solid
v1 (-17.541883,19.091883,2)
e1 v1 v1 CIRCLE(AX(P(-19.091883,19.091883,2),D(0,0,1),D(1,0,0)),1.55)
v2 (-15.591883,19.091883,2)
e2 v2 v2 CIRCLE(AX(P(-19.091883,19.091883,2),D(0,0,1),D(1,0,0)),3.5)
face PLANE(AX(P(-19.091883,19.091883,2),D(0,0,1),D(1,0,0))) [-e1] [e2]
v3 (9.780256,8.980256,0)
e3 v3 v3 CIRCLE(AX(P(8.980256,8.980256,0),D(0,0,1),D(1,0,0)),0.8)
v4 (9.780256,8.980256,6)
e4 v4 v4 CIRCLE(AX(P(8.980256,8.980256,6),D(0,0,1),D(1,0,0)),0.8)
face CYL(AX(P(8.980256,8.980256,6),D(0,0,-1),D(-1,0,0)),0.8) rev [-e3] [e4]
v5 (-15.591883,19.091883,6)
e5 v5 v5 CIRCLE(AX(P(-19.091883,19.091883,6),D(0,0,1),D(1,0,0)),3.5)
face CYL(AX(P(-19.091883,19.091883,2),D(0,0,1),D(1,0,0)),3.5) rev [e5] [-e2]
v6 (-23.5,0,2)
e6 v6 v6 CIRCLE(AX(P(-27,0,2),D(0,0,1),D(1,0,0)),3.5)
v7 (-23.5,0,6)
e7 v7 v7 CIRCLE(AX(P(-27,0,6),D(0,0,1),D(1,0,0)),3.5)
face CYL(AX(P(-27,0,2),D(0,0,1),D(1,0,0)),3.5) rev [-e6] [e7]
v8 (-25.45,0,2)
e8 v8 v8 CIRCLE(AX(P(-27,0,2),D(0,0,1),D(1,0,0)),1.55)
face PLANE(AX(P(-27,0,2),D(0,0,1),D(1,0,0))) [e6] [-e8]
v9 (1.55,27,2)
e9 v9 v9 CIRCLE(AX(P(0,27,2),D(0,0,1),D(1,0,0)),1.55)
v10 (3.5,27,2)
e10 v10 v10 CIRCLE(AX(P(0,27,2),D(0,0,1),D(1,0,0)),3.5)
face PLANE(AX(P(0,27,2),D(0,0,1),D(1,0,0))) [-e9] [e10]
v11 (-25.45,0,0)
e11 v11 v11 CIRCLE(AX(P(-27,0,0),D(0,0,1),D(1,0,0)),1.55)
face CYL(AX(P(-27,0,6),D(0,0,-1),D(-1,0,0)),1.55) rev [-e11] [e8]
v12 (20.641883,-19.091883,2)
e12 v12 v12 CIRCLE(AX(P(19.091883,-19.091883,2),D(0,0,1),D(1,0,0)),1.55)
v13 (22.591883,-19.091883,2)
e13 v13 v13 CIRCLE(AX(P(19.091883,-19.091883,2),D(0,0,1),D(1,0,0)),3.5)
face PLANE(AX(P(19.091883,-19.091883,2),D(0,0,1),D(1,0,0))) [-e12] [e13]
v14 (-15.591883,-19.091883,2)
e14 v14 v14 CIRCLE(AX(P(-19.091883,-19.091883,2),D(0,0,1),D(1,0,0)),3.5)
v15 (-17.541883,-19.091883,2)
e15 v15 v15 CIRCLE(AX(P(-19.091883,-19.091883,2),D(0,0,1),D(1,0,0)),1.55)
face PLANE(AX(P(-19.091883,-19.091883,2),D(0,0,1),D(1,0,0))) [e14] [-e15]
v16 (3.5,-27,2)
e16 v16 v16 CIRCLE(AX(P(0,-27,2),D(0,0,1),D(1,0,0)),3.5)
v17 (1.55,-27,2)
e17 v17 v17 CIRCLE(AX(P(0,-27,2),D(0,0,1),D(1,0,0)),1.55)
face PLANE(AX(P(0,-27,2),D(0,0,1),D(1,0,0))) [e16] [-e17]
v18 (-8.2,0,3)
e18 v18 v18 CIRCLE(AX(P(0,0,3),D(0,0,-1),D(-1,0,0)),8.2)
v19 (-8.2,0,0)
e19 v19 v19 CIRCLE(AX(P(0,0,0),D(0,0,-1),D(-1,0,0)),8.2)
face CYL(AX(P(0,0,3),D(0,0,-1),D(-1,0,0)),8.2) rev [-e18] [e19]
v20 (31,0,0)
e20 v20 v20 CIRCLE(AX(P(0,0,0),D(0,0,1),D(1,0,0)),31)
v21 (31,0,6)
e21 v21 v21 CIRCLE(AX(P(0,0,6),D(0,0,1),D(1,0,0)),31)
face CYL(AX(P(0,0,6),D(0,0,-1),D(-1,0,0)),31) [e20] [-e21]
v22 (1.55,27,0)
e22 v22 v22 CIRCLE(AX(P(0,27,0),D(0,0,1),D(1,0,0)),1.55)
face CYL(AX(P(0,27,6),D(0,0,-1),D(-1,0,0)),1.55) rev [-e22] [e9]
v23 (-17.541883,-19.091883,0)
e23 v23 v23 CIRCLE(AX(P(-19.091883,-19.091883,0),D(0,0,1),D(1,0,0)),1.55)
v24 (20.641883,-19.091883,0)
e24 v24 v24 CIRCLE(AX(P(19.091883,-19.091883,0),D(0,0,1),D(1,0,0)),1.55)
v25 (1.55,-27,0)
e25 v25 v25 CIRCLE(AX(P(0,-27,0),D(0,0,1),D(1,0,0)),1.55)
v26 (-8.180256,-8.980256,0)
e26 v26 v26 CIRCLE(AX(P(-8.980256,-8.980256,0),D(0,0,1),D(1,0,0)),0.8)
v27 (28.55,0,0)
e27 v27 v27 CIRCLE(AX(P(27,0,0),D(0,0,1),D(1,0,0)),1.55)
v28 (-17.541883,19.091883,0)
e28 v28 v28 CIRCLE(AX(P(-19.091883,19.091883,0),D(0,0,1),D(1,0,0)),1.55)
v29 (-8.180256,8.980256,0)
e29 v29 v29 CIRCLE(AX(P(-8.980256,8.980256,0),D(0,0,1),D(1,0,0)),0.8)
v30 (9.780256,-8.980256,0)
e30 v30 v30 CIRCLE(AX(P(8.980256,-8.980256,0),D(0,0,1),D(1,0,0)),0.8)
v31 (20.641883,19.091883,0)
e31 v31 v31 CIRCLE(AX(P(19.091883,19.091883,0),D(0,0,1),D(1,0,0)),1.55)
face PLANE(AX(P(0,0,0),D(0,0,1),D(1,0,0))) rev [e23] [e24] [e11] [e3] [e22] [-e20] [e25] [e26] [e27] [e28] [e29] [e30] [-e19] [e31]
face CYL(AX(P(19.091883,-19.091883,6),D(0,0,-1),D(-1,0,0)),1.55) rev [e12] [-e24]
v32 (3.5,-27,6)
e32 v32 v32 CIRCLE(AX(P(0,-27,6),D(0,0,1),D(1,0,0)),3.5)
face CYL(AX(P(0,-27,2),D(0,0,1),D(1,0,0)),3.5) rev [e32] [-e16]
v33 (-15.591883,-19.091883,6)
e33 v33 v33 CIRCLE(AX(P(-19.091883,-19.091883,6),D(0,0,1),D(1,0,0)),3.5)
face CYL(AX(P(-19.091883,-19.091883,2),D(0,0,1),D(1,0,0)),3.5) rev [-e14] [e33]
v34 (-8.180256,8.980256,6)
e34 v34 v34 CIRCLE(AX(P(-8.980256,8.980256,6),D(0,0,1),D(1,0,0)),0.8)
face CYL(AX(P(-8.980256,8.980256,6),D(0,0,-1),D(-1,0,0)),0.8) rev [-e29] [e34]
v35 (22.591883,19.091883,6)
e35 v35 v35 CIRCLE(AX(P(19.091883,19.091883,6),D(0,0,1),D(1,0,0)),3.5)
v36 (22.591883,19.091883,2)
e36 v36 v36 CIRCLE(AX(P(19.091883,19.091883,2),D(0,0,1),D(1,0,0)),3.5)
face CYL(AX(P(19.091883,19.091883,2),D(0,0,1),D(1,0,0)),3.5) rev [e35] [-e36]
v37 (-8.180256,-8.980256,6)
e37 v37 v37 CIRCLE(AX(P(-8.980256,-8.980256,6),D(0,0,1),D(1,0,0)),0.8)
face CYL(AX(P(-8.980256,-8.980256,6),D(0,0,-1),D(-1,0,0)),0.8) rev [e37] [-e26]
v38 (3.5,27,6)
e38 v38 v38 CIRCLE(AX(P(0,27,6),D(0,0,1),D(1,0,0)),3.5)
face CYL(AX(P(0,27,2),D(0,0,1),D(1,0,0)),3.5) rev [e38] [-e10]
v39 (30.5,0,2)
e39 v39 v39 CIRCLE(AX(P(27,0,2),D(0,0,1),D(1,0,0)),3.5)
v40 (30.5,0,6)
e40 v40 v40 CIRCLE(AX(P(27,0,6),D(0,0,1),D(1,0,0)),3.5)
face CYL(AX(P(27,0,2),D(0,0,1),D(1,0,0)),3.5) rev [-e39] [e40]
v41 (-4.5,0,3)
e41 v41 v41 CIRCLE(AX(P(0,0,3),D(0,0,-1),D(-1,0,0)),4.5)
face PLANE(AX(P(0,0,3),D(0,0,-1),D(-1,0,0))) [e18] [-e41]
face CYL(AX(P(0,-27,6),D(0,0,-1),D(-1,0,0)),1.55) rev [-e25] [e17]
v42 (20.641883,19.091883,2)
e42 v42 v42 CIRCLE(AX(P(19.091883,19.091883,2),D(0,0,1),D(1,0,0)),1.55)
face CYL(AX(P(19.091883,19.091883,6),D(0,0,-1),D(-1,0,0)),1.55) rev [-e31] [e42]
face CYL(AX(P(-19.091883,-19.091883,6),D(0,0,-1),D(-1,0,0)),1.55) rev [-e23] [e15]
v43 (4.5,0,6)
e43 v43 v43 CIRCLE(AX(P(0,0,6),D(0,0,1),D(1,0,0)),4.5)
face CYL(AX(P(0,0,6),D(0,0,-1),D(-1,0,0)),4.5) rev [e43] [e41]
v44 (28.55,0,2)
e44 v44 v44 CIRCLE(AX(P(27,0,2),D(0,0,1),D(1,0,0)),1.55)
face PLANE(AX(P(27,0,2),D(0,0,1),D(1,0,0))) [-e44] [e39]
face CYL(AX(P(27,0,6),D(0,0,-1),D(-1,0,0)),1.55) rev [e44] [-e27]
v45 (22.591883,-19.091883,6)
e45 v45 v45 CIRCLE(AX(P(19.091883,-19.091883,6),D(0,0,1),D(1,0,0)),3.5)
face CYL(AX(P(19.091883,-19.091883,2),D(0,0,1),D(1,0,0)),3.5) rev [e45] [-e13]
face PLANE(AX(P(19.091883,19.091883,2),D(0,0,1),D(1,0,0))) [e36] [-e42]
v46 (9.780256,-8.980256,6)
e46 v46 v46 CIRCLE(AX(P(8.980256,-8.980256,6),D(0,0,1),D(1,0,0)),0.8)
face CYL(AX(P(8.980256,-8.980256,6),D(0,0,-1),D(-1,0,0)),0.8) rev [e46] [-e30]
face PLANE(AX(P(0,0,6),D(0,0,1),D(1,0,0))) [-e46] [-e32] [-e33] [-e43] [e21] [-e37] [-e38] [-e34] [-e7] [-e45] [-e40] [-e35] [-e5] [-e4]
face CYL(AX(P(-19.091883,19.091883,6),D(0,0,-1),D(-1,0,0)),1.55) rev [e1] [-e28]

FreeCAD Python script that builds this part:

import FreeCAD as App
import Part
import Sketcher

V = App.Vector

doc = App.newDocument("Part")
body = doc.addObject("PartDesign::Body", "Body")

# Sketch on XY plane
sketch1 = body.newObject("Sketcher::SketchObject", "Sketch")
sketch1.AttachmentSupport = (doc.getObject("XY_Plane"), [""])
sketch1.MapMode = "FlatFace"
sketch1.addGeometry(Part.Circle(V(0, 0, 0), V(0, 0, 1), 31), False)
sketch1.addGeometry(Part.Circle(V(-19.1, -19.1, 0), V(0, 0, 1), 1.6), False)
sketch1.addGeometry(Part.Circle(V(-9, -9, 0), V(0, 0, 1), 0.8), False)
sketch1.addGeometry(Part.Circle(V(0, -27, 0), V(0, 0, 1), 1.6), False)
sketch1.addGeometry(Part.Circle(V(19.1, -19.1, 0), V(0, 0, 1), 1.6), False)
sketch1.addGeometry(Part.Circle(V(9, -9, 0), V(0, 0, 1), 0.8), False)
sketch1.addGeometry(Part.Circle(V(0, 0, 0), V(0, 0, 1), 4.5), False)
sketch1.addGeometry(Part.Circle(V(-27, 0, 0), V(0, 0, 1), 1.6), False)
sketch1.addGeometry(Part.Circle(V(-9, 9, 0), V(0, 0, 1), 0.8), False)
sketch1.addGeometry(Part.Circle(V(-19.1, 19.1, 0), V(0, 0, 1), 1.6), False)
sketch1.addGeometry(Part.Circle(V(9, 9, 0), V(0, 0, 1), 0.8), False)
sketch1.addGeometry(Part.Circle(V(27, 0, 0), V(0, 0, 1), 1.6), False)
sketch1.addGeometry(Part.Circle(V(0, 27, 0), V(0, 0, 1), 1.6), False)
sketch1.addGeometry(Part.Circle(V(19.1, 19.1, 0), V(0, 0, 1), 1.6), False)
sketch1.addConstraint(Sketcher.Constraint("Coincident", 0, 3, -1, 1))
sketch1.addConstraint(Sketcher.Constraint("Coincident", 6, 3, -1, 1))
sketch1.addConstraint(Sketcher.Constraint("Equal", 1, 3))
sketch1.addConstraint(Sketcher.Constraint("Equal", 3, 4))
sketch1.addConstraint(Sketcher.Constraint("Equal", 2, 5))
sketch1.addConstraint(Sketcher.Constraint("Equal", 4, 7))
sketch1.addConstraint(Sketcher.Constraint("Equal", 5, 8))
sketch1.addConstraint(Sketcher.Constraint("Equal", 7, 9))
sketch1.addConstraint(Sketcher.Constraint("Equal", 8, 10))
sketch1.addConstraint(Sketcher.Constraint("Equal", 9, 11))
sketch1.addConstraint(Sketcher.Constraint("Equal", 11, 12))
sketch1.addConstraint(Sketcher.Constraint("Equal", 12, 13))
sketch1.addConstraint(Sketcher.Constraint("Symmetric", 5, 3, 8, 3, -1, 1))
sketch1.addConstraint(Sketcher.Constraint("Symmetric", 4, 3, 9, 3, -1, 1))
sketch1.addConstraint(Sketcher.Constraint("Symmetric", 2, 3, 10, 3, -1, 1))
sketch1.addConstraint(Sketcher.Constraint("Symmetric", 7, 3, 11, 3, -1, 1))
sketch1.addConstraint(Sketcher.Constraint("Symmetric", 3, 3, 12, 3, -1, 1))
sketch1.addConstraint(Sketcher.Constraint("Symmetric", 1, 3, 13, 3, -1, 1))
sketch1.addConstraint(Sketcher.Constraint("Symmetric", 1, 3, 4, 3, -2))
sketch1.addConstraint(Sketcher.Constraint("Symmetric", 2, 3, 5, 3, -2))
sketch1.addConstraint(Sketcher.Constraint("PointOnObject", 3, 3, -2))
sketch1.addConstraint(Sketcher.Constraint("PointOnObject", 7, 3, -1))
sketch1.addConstraint(Sketcher.Constraint("Diameter", 0, 62.0))
sketch1.addConstraint(Sketcher.Constraint("Diameter", 6, 9.0))
sketch1.addConstraint(Sketcher.Constraint("Diameter", 1, 3.1))
sketch1.addConstraint(Sketcher.Constraint("Diameter", 2, 1.6))
sketch1.addConstraint(Sketcher.Constraint("DistanceY", 3, 3, -1, 1, 27.0))
sketch1.addConstraint(Sketcher.Constraint("DistanceX", 7, 3, -1, 1, 27.0))
sketch1.addConstraint(Sketcher.Constraint("DistanceX", 2, 3, 4, 3, 28.072139))
sketch1.addConstraint(Sketcher.Constraint("DistanceY", 2, 3, 9, 3, 28.072139))
sketch1.addConstraint(Sketcher.Constraint("DistanceX", 1, 3, -1, 1, 19.091883))
sketch1.addConstraint(Sketcher.Constraint("DistanceY", 1, 3, -1, 1, 19.091883))
pad1 = body.newObject("PartDesign::Pad", "Pad")
pad1.Profile = sketch1
pad1.Length = 6

# Sketch on XY plane
sketch2 = body.newObject("Sketcher::SketchObject", "Sketch001")
sketch2.AttachmentSupport = (doc.getObject("XY_Plane"), [""])
sketch2.MapMode = "FlatFace"
sketch2.addGeometry(Part.Circle(V(0, 0, 0), V(0, 0, 1), 8), False)
sketch2.addConstraint(Sketcher.Constraint("Coincident", 0, 3, -1, 1))
sketch2.addConstraint(Sketcher.Constraint("Diameter", 0, 16.4))
pocket1 = body.newObject("PartDesign::Pocket", "Pocket")
pocket1.Profile = sketch2
pocket1.Length = 3
pocket1.Reversed = True

# Sketch on XY plane
sketch3 = body.newObject("Sketcher::SketchObject", "Sketch002")
sketch3.AttachmentSupport = (doc.getObject("XY_Plane"), [""])
sketch3.MapMode = "FlatFace"
sketch3.AttachmentOffset = App.Placement(V(0, 0, 6), App.Rotation())
sketch3.addGeometry(Part.Circle(V(0, 27, 0), V(0, 0, 1), 3.5), False)
sketch3.addGeometry(Part.Circle(V(19.1, 19.1, 0), V(0, 0, 1), 3.5), False)
sketch3.addGeometry(Part.Circle(V(27, 0, 0), V(0, 0, 1), 3.5), False)
sketch3.addGeometry(Part.Circle(V(19.1, -19.1, 0), V(0, 0, 1), 3.5), False)
sketch3.addGeometry(Part.Circle(V(0, -27, 0), V(0, 0, 1), 3.5), False)
sketch3.addGeometry(Part.Circle(V(-19.1, -19.1, 0), V(0, 0, 1), 3.5), False)
sketch3.addGeometry(Part.Circle(V(-27, 0, 0), V(0, 0, 1), 3.5), False)
sketch3.addGeometry(Part.Circle(V(-19.1, 19.1, 0), V(0, 0, 1), 3.5), False)
sketch3.addConstraint(Sketcher.Constraint("Equal", 0, 1))
sketch3.addConstraint(Sketcher.Constraint("Equal", 1, 2))
sketch3.addConstraint(Sketcher.Constraint("Equal", 2, 3))
sketch3.addConstraint(Sketcher.Constraint("Equal", 3, 4))
sketch3.addConstraint(Sketcher.Constraint("Equal", 4, 5))
sketch3.addConstraint(Sketcher.Constraint("Equal", 5, 6))
sketch3.addConstraint(Sketcher.Constraint("Equal", 6, 7))
sketch3.addConstraint(Sketcher.Constraint("Symmetric", 0, 3, 4, 3, -1, 1))
sketch3.addConstraint(Sketcher.Constraint("Symmetric", 1, 3, 5, 3, -1, 1))
sketch3.addConstraint(Sketcher.Constraint("Symmetric", 2, 3, 6, 3, -1, 1))
sketch3.addConstraint(Sketcher.Constraint("Symmetric", 3, 3, 7, 3, -1, 1))
sketch3.addConstraint(Sketcher.Constraint("Symmetric", 3, 3, 5, 3, -2))
sketch3.addConstraint(Sketcher.Constraint("PointOnObject", 0, 3, -2))
sketch3.addConstraint(Sketcher.Constraint("PointOnObject", 2, 3, -1))
sketch3.addConstraint(Sketcher.Constraint("Diameter", 0, 7.0))
sketch3.addConstraint(Sketcher.Constraint("DistanceY", -1, 1, 0, 3, 27.0))
sketch3.addConstraint(Sketcher.Constraint("DistanceX", -1, 1, 2, 3, 27.0))
sketch3.addConstraint(Sketcher.Constraint("DistanceX", -1, 1, 1, 3, 19.091883))
sketch3.addConstraint(Sketcher.Constraint("DistanceY", -1, 1, 1, 3, 19.091883))
pocket2 = body.newObject("PartDesign::Pocket", "Pocket001")
pocket2.Profile = sketch3
pocket2.Length = 4

doc.recompute()
